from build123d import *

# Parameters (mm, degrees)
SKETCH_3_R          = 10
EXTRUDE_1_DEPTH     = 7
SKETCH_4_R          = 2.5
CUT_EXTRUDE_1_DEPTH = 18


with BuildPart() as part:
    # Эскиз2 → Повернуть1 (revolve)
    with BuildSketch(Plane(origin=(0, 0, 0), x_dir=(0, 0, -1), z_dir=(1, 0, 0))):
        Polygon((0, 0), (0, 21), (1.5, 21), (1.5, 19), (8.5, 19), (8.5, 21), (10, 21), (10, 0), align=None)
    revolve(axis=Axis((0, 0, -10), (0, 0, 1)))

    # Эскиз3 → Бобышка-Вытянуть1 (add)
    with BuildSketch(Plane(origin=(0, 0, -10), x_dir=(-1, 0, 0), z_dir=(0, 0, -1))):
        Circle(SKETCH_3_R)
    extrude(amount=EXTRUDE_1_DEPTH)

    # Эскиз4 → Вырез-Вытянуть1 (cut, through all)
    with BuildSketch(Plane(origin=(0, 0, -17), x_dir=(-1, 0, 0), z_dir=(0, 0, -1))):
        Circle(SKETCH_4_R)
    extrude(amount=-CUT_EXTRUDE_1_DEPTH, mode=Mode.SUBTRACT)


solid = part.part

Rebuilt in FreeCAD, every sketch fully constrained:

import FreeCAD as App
import Part
import Sketcher

V = App.Vector

doc = App.newDocument("Part")
body = doc.addObject("PartDesign::Body", "Body")

# Sketch on YZ plane
sketch1 = body.newObject("Sketcher::SketchObject", "Sketch")
sketch1.AttachmentSupport = (doc.getObject("YZ_Plane"), [""])
sketch1.MapMode = "FlatFace"
sketch1.addGeometry([
    Part.LineSegment(V(21, 0, 0), V(0, 0, 0)),  # 0
    Part.LineSegment(V(0, 0, 0), V(0, -10, 0)),  # 1
    Part.LineSegment(V(0, -10, 0), V(21, -10, 0)),  # 2
    Part.LineSegment(V(21, -10, 0), V(21, -8.5, 0)),  # 3
    Part.LineSegment(V(21, -8.5, 0), V(19, -8.5, 0)),  # 4
    Part.LineSegment(V(19, -8.5, 0), V(19, -1.5, 0)),  # 5
    Part.LineSegment(V(19, -1.5, 0), V(21, -1.5, 0)),  # 6
    Part.LineSegment(V(21, -1.5, 0), V(21, 0, 0)),  # 7
], False)
sketch1.addConstraint([
    Sketcher.Constraint("Coincident", 0, 2, 1, 1),
    Sketcher.Constraint("Coincident", 1, 2, 2, 1),
    Sketcher.Constraint("Coincident", 2, 2, 3, 1),
    Sketcher.Constraint("Coincident", 3, 2, 4, 1),
    Sketcher.Constraint("Coincident", 4, 2, 5, 1),
    Sketcher.Constraint("Coincident", 5, 2, 6, 1),
    Sketcher.Constraint("Coincident", 6, 2, 7, 1),
    Sketcher.Constraint("Coincident", 7, 2, 0, 1),
    Sketcher.Constraint("Horizontal", 0),
    Sketcher.Constraint("Vertical", 1),
    Sketcher.Constraint("Horizontal", 2),
    Sketcher.Constraint("Vertical", 3),
    Sketcher.Constraint("Horizontal", 4),
    Sketcher.Constraint("Vertical", 5),
    Sketcher.Constraint("Horizontal", 6),
    Sketcher.Constraint("Vertical", 7),
    Sketcher.Constraint("Coincident", 0, 2, -1, 1),
    Sketcher.Constraint("Vertical", 3, 2, 6, 2),
    Sketcher.Constraint("Equal", 3, 7),
    Sketcher.Constraint("DistanceX", 0, 2, 0, 1, 21.0),
    Sketcher.Constraint("DistanceX", 4, 2, 4, 1, 2.0),
    Sketcher.Constraint("DistanceY", 1, 2, 1, 1, 10.0),
    Sketcher.Constraint("DistanceY", 5, 1, 5, 2, 7.0),
])
revolution = body.newObject("PartDesign::Revolution", "Revolution")
revolution.Profile = sketch1
revolution.ReferenceAxis = (sketch1, ["V_Axis"])
revolution.Angle = 360

# Sketch on XY plane
sketch2 = body.newObject("Sketcher::SketchObject", "Sketch001")
sketch2.AttachmentSupport = (doc.getObject("XY_Plane"), [""])
sketch2.MapMode = "FlatFace"
sketch2.AttachmentOffset = App.Placement(V(0, 0, -10), App.Rotation())
sketch2.addGeometry(Part.Circle(V(0, 0, 0), V(0, 0, 1), 10), False)
sketch2.addConstraint([
    Sketcher.Constraint("Coincident", 0, 3, -1, 1),
    Sketcher.Constraint("Diameter", 0, 20.0),
])
pad1 = body.newObject("PartDesign::Pad", "Pad")
pad1.Profile = sketch2
pad1.Length = 7
pad1.Reversed = True

# Sketch on XY plane
sketch3 = body.newObject("Sketcher::SketchObject", "Sketch002")
sketch3.AttachmentSupport = (doc.getObject("XY_Plane"), [""])
sketch3.MapMode = "FlatFace"
sketch3.AttachmentOffset = App.Placement(V(0, 0, -17), App.Rotation())
sketch3.addGeometry(Part.Circle(V(0, 0, 0), V(0, 0, 1), 2.5), False)
sketch3.addConstraint([
    Sketcher.Constraint("Coincident", 0, 3, -1, 1),
    Sketcher.Constraint("Diameter", 0, 5.0),
])
pocket1 = body.newObject("PartDesign::Pocket", "Pocket")
pocket1.Profile = sketch3
pocket1.Type = "ThroughAll"
pocket1.Reversed = True

doc.recompute()
